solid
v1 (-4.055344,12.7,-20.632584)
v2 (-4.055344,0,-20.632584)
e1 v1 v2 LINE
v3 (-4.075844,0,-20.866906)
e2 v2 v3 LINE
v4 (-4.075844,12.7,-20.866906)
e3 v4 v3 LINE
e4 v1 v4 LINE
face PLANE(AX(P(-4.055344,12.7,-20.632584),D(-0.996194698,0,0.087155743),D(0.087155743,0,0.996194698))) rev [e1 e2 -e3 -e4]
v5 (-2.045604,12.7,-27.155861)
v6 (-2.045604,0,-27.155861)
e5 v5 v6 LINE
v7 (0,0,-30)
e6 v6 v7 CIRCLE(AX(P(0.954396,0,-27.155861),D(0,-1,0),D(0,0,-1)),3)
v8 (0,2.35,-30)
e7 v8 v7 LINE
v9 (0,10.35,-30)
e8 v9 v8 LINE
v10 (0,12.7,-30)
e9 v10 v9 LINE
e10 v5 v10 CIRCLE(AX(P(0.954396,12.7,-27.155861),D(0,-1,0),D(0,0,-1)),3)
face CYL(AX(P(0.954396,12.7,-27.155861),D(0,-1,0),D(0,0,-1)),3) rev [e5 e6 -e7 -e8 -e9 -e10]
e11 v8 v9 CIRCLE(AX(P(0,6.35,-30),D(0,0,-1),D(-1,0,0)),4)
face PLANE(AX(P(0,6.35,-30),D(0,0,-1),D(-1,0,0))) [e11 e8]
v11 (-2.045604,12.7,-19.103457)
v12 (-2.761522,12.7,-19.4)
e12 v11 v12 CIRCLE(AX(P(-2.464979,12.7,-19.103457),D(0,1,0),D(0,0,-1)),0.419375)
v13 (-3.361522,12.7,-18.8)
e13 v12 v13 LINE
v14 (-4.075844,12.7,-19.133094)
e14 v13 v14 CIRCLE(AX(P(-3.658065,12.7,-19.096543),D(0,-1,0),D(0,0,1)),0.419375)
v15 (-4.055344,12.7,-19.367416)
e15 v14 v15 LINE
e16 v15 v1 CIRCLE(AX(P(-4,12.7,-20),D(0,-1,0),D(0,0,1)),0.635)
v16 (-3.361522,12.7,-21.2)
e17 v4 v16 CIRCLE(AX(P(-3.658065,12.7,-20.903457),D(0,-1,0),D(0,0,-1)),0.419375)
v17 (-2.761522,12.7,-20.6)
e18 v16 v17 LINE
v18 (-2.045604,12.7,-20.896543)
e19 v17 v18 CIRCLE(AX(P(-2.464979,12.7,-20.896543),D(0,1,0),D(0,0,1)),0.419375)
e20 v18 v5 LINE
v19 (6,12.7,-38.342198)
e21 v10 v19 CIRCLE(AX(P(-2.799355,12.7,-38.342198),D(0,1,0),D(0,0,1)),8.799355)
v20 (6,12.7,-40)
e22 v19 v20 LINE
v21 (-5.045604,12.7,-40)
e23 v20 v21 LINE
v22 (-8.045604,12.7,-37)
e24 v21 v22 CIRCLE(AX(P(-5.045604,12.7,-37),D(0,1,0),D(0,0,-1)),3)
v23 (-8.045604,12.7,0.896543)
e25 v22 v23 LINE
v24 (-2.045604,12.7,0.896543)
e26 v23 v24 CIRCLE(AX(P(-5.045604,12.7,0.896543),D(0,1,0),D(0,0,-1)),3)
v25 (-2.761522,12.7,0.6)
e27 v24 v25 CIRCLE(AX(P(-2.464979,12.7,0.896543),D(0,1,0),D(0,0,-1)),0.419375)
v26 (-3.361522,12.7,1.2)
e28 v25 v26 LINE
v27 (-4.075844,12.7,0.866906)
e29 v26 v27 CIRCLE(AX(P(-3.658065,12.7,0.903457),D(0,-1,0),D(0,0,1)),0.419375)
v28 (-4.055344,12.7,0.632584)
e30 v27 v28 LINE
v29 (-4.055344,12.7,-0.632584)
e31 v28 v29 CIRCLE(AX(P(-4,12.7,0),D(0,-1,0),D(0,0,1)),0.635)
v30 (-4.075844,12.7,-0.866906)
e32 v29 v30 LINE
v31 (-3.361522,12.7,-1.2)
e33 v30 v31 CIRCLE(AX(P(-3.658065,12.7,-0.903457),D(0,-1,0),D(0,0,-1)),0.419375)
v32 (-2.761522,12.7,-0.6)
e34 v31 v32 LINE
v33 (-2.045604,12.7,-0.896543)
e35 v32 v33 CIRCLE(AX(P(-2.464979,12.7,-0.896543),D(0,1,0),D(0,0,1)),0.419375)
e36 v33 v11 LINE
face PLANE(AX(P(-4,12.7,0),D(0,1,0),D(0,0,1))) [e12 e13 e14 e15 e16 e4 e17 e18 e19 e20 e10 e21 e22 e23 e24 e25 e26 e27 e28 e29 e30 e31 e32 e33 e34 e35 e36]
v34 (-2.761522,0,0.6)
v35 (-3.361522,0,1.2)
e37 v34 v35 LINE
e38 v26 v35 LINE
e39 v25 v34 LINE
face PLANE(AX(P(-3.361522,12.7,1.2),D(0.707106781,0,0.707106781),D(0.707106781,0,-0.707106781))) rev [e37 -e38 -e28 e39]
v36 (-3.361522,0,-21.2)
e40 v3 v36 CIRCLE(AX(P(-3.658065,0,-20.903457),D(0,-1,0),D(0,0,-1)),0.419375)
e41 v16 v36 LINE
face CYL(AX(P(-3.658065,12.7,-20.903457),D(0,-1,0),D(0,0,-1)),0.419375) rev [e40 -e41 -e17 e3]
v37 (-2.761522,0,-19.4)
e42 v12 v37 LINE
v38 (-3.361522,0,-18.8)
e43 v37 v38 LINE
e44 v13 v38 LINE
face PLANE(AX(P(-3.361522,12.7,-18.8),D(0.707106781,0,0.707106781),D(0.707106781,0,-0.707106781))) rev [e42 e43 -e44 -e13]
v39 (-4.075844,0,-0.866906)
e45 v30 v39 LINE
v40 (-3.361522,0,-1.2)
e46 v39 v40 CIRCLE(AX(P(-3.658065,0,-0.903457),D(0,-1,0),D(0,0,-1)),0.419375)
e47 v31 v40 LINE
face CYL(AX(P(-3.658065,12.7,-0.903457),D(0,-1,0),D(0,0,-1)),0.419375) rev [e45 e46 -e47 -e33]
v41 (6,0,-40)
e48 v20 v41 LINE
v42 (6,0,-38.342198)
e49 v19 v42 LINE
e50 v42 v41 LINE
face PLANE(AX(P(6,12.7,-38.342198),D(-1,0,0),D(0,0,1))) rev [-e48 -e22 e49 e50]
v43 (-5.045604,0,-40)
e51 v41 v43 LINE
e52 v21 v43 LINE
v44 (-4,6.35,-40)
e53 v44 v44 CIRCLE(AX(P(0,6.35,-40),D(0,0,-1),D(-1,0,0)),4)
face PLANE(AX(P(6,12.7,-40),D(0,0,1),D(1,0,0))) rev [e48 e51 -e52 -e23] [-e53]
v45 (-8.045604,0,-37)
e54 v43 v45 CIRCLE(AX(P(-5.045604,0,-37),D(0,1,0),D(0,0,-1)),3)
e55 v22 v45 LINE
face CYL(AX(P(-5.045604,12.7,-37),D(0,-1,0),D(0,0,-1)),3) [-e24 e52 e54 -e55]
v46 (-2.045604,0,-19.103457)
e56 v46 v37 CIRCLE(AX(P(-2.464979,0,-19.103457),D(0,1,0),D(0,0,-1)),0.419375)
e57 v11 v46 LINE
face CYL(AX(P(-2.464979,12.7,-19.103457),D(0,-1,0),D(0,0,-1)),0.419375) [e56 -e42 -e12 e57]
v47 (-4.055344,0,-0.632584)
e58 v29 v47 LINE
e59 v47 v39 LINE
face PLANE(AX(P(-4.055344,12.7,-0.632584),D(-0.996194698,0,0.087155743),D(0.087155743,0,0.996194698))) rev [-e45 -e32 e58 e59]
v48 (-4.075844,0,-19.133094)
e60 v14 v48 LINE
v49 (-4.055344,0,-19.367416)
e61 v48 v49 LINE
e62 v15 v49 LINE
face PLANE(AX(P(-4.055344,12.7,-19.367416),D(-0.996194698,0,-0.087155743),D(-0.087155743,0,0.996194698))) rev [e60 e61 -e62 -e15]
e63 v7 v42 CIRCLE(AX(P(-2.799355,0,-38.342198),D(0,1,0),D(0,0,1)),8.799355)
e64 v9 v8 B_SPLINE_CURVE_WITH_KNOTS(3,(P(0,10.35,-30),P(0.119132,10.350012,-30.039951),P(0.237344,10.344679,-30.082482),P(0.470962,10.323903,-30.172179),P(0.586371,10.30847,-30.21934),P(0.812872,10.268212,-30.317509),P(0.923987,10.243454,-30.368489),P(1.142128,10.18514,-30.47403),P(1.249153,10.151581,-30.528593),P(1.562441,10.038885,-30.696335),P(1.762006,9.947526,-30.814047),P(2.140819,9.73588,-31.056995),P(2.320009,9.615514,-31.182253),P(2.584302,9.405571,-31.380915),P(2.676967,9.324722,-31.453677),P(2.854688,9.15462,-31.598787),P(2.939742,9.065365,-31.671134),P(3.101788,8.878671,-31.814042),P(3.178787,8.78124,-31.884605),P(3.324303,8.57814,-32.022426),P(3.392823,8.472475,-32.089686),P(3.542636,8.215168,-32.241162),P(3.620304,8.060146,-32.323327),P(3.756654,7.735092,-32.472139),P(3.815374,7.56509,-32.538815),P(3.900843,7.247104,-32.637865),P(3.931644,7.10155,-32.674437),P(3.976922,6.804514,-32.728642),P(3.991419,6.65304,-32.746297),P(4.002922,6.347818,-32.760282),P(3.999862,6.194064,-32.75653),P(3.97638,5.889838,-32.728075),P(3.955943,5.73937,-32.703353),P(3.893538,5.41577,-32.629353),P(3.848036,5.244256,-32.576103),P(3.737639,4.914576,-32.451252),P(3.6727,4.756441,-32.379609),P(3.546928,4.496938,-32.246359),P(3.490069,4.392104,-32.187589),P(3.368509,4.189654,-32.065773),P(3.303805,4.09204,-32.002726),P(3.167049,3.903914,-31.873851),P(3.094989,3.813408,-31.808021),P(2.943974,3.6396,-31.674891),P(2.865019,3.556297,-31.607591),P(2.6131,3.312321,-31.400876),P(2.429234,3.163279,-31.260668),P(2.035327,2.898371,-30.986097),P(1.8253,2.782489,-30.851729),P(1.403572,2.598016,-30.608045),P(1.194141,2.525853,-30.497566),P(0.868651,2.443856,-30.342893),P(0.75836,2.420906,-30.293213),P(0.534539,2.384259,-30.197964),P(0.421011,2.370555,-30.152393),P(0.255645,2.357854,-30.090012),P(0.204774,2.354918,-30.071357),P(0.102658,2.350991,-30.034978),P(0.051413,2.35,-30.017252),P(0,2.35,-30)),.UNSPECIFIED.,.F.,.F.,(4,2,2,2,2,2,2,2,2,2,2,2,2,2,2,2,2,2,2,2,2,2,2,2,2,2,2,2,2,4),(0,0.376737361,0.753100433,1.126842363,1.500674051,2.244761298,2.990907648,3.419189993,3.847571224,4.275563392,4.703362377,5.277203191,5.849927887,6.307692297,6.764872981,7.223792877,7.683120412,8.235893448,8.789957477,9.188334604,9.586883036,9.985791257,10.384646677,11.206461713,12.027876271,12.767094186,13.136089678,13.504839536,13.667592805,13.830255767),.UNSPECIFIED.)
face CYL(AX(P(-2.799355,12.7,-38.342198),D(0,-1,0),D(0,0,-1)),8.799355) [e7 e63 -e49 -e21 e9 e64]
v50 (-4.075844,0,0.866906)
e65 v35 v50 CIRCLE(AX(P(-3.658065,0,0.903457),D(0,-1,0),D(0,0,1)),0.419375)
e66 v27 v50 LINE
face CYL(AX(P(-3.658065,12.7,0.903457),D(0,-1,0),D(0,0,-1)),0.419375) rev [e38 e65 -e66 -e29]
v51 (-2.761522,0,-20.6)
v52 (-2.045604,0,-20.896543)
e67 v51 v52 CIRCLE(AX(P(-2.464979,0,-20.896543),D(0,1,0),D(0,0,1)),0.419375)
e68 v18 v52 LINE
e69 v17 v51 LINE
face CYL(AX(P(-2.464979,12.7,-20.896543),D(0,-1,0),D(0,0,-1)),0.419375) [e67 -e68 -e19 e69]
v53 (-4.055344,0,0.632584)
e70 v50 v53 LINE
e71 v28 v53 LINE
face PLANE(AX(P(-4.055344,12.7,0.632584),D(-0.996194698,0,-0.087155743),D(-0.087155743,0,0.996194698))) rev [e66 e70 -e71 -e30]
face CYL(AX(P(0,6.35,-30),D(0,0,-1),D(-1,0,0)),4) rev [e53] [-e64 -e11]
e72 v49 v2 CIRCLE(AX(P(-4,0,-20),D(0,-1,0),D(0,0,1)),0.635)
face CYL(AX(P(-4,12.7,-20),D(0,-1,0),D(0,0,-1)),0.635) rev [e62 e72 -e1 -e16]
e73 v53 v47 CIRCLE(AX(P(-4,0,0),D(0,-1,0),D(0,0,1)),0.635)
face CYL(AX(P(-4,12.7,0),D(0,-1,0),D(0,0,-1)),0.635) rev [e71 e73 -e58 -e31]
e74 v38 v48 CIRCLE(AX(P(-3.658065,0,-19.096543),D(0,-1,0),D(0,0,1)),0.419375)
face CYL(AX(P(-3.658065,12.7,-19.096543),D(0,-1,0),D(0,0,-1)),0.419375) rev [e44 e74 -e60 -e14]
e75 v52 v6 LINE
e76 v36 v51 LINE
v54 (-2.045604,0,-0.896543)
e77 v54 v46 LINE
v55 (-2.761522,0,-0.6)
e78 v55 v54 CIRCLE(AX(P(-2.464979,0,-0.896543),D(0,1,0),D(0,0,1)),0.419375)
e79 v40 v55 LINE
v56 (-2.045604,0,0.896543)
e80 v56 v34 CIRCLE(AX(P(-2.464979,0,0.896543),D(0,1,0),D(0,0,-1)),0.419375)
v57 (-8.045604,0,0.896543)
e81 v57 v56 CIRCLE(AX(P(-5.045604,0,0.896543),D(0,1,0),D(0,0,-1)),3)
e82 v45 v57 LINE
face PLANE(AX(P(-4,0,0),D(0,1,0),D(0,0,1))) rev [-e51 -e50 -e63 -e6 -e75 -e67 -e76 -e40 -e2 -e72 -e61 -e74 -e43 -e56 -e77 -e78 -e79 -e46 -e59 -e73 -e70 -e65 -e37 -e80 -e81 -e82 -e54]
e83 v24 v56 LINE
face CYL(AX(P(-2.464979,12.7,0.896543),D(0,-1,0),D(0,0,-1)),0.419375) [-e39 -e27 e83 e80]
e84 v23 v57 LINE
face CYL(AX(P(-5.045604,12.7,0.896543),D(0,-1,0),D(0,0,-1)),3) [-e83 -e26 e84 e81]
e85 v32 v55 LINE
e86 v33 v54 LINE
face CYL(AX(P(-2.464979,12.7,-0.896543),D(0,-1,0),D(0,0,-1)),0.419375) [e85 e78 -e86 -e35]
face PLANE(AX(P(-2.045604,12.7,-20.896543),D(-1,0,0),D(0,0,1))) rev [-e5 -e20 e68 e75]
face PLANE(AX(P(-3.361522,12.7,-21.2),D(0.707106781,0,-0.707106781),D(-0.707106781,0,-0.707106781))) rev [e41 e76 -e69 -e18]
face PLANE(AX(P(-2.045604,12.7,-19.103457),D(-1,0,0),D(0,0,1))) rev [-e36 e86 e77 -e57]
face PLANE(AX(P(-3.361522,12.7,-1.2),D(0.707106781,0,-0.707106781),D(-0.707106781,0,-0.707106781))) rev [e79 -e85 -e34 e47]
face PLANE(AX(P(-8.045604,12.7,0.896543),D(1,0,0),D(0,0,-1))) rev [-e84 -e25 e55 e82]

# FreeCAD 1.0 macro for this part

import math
import FreeCAD as App
import Part
import Sketcher
from FreeCAD import Vector
Q = App.Units.Quantity

doc = App.newDocument("Part")
params = doc.addObject("Spreadsheet::Sheet", "Params")
for row, (alias, value) in enumerate([
    ("sketch1_radius", "3 mm"),
    ("pad1_length", "12.7 mm"),
    ("sketch2_diameter", "8 mm"),
    ("pocket1_length", "10 mm"),
], start=1):
    params.set(f"A{row}", alias)
    params.set(f"B{row}", "=" + value)
    params.setAlias(f"B{row}", alias)

body = doc.addObject("PartDesign::Body", "Body")

# Sketch on XZ plane
sketch1 = body.newObject("Sketcher::SketchObject", "Sketch")
sketch1.AttachmentSupport = (doc.getObject("XZ_Plane"), [""])
sketch1.MapMode = "FlatFace"
sketch1.addGeometry(Part.LineSegment(Vector(-4.06, -0.63, 0), Vector(-4.08, -0.87, 0)), False)
sketch1.addGeometry(Part.ArcOfCircle(Part.Circle(Vector(-3.66, -0.9, 0), Vector(0, 0, 1), 0.42), math.radians(175), math.radians(315)), False)
sketch1.addGeometry(Part.LineSegment(Vector(-3.36, -1.2, 0), Vector(-2.76, -0.6, 0)), False)
sketch1.addGeometry(Part.ArcOfCircle(Part.Circle(Vector(-2.46, -0.9, 0), Vector(0, 0, 1), 0.42), math.radians(0), math.radians(135)), False)
sketch1.addGeometry(Part.LineSegment(Vector(-2.05, -0.9, 0), Vector(-2.05, -19.1, 0)), False)
sketch1.addGeometry(Part.ArcOfCircle(Part.Circle(Vector(-2.46, -19.1, 0), Vector(0, 0, 1), 0.42), math.radians(-135), math.radians(0)), False)
sketch1.addGeometry(Part.LineSegment(Vector(-2.76, -19.4, 0), Vector(-3.36, -18.8, 0)), False)
sketch1.addGeometry(Part.ArcOfCircle(Part.Circle(Vector(-3.66, -19.1, 0), Vector(0, 0, 1), 0.42), math.radians(45), math.radians(185)), False)
sketch1.addGeometry(Part.LineSegment(Vector(-4.08, -19.13, 0), Vector(-4.06, -19.37, 0)), False)
sketch1.addGeometry(Part.ArcOfCircle(Part.Circle(Vector(-4, -20, 0), Vector(0, 0, 1), 0.64), math.radians(95), math.radians(265)), False)
sketch1.addGeometry(Part.LineSegment(Vector(-4.06, -20.63, 0), Vector(-4.08, -20.87, 0)), False)
sketch1.addGeometry(Part.ArcOfCircle(Part.Circle(Vector(-3.66, -20.9, 0), Vector(0, 0, 1), 0.42), math.radians(175), math.radians(315)), False)
sketch1.addGeometry(Part.LineSegment(Vector(-3.36, -21.2, 0), Vector(-2.76, -20.6, 0)), False)
sketch1.addGeometry(Part.ArcOfCircle(Part.Circle(Vector(-2.46, -20.9, 0), Vector(0, 0, 1), 0.42), math.radians(0), math.radians(135)), False)
sketch1.addGeometry(Part.LineSegment(Vector(-2.05, -20.9, 0), Vector(-2.05, -27.16, 0)), False)
sketch1.addGeometry(Part.ArcOfCircle(Part.Circle(Vector(0.95, -27.16, 0), Vector(0, 0, 1), 3), math.radians(-180), math.radians(-109)), False)
sketch1.addGeometry(Part.ArcOfCircle(Part.Circle(Vector(-2.8, -38.34, 0), Vector(0, 0, 1), 8.8), math.radians(0), math.radians(71)), False)
sketch1.addGeometry(Part.LineSegment(Vector(6, -38.34, 0), Vector(6, -40, 0)), False)
sketch1.addGeometry(Part.LineSegment(Vector(6, -40, 0), Vector(-5.05, -40, 0)), False)
sketch1.addGeometry(Part.ArcOfCircle(Part.Circle(Vector(-5.05, -37, 0), Vector(0, 0, 1), 3), math.radians(180), math.radians(270)), False)
sketch1.addGeometry(Part.LineSegment(Vector(-8.05, -37, 0), Vector(-8.05, 0.9, 0)), False)
sketch1.addGeometry(Part.ArcOfCircle(Part.Circle(Vector(-5.05, 0.9, 0), Vector(0, 0, 1), 3), math.radians(0), math.radians(180)), False)
sketch1.addGeometry(Part.ArcOfCircle(Part.Circle(Vector(-2.46, 0.9, 0), Vector(0, 0, 1), 0.42), math.radians(-135), math.radians(0)), False)
sketch1.addGeometry(Part.LineSegment(Vector(-2.76, 0.6, 0), Vector(-3.36, 1.2, 0)), False)
sketch1.addGeometry(Part.ArcOfCircle(Part.Circle(Vector(-3.66, 0.9, 0), Vector(0, 0, 1), 0.42), math.radians(45), math.radians(185)), False)
sketch1.addGeometry(Part.LineSegment(Vector(-4.08, 0.87, 0), Vector(-4.06, 0.63, 0)), False)
sketch1.addGeometry(Part.ArcOfCircle(Part.Circle(Vector(-4, 0, 0), Vector(0, 0, 1), 0.64), math.radians(95), math.radians(265)), False)
sketch1.addConstraint(Sketcher.Constraint("Tangent", 0, 2, 1, 1))
sketch1.addConstraint(Sketcher.Constraint("Tangent", 1, 2, 2, 1))
sketch1.addConstraint(Sketcher.Constraint("Tangent", 2, 2, 3, 2))
sketch1.addConstraint(Sketcher.Constraint("Tangent", 3, 1, 4, 1))
sketch1.addConstraint(Sketcher.Constraint("Tangent", 4, 2, 5, 2))
sketch1.addConstraint(Sketcher.Constraint("Tangent", 5, 1, 6, 1))
sketch1.addConstraint(Sketcher.Constraint("Tangent", 6, 2, 7, 1))
sketch1.addConstraint(Sketcher.Constraint("Tangent", 7, 2, 8, 1))
sketch1.addConstraint(Sketcher.Constraint("Coincident", 8, 2, 9, 1))
sketch1.addConstraint(Sketcher.Constraint("Coincident", 9, 2, 10, 1))
sketch1.addConstraint(Sketcher.Constraint("Tangent", 10, 2, 11, 1))
sketch1.addConstraint(Sketcher.Constraint("Tangent", 11, 2, 12, 1))
sketch1.addConstraint(Sketcher.Constraint("Tangent", 12, 2, 13, 2))
sketch1.addConstraint(Sketcher.Constraint("Tangent", 13, 1, 14, 1))
sketch1.addConstraint(Sketcher.Constraint("Tangent", 14, 2, 15, 1))
sketch1.addConstraint(Sketcher.Constraint("Tangent", 15, 2, 16, 2))
sketch1.addConstraint(Sketcher.Constraint("Tangent", 16, 1, 17, 1))
sketch1.addConstraint(Sketcher.Constraint("Coincident", 17, 2, 18, 1))
sketch1.addConstraint(Sketcher.Constraint("Tangent", 18, 2, 19, 2))
sketch1.addConstraint(Sketcher.Constraint("Tangent", 19, 1, 20, 1))
sketch1.addConstraint(Sketcher.Constraint("Tangent", 20, 2, 21, 2))
sketch1.addConstraint(Sketcher.Constraint("Tangent", 21, 1, 22, 2))
sketch1.addConstraint(Sketcher.Constraint("Tangent", 22, 1, 23, 1))
sketch1.addConstraint(Sketcher.Constraint("Tangent", 23, 2, 24, 1))
sketch1.addConstraint(Sketcher.Constraint("Tangent", 24, 2, 25, 1))
sketch1.addConstraint(Sketcher.Constraint("Coincident", 25, 2, 26, 1))
sketch1.addConstraint(Sketcher.Constraint("Coincident", 26, 2, 0, 1))
sketch1.addConstraint(Sketcher.Constraint("Vertical", 4))
sketch1.addConstraint(Sketcher.Constraint("Vertical", 14))
sketch1.addConstraint(Sketcher.Constraint("Vertical", 17))
sketch1.addConstraint(Sketcher.Constraint("Horizontal", 18))
sketch1.addConstraint(Sketcher.Constraint("Vertical", 20))
sketch1.addConstraint(Sketcher.Constraint("Equal", 1, 3))
sketch1.addConstraint(Sketcher.Constraint("Equal", 3, 5))
sketch1.addConstraint(Sketcher.Constraint("Equal", 5, 7))
sketch1.addConstraint(Sketcher.Constraint("Equal", 7, 11))
sketch1.addConstraint(Sketcher.Constraint("Equal", 11, 13))
sketch1.addConstraint(Sketcher.Constraint("Equal", 15, 19))
sketch1.addConstraint(Sketcher.Constraint("Equal", 19, 21))
sketch1.addConstraint(Sketcher.Constraint("Equal", 13, 22))
sketch1.addConstraint(Sketcher.Constraint("Equal", 22, 24))
sketch1.addConstraint(Sketcher.Constraint("Equal", 9, 26))
sketch1.addConstraint(Sketcher.Constraint("Symmetric", 3, 3, 22, 3, -1))
sketch1.addConstraint(Sketcher.Constraint("Symmetric", 1, 3, 24, 3, -1))
sketch1.addConstraint(Sketcher.Constraint("Symmetric", 25, 2, 26, 2, -1))
sketch1.addConstraint(Sketcher.Constraint("PointOnObject", 15, 2, -2))
sketch1.addConstraint(Sketcher.Constraint("Perpendicular", 2, 6))
sketch1.addConstraint(Sketcher.Constraint("Parallel", 0, 10))
sketch1.addConstraint(Sketcher.Constraint("Perpendicular", 6, 12))
sketch1.addConstraint(Sketcher.Constraint("Perpendicular", 12, 23))
sketch1.addConstraint(Sketcher.Constraint("Parallel", 8, 25))
sketch1.addConstraint(Sketcher.Constraint("Horizontal", 21, 3, 22, 3))
sketch1.addConstraint(Sketcher.Constraint("Vertical", 1, 3, 7, 3))
sketch1.addConstraint(Sketcher.Constraint("Vertical", 7, 3, 11, 3))
sketch1.addConstraint(Sketcher.Constraint("Vertical", 5, 3, 13, 3))
sketch1.addConstraint(Sketcher.Constraint("Vertical", 9, 3, 26, 3))
sketch1.addConstraint(Sketcher.Constraint("Vertical", 8, 2, 9, 2))
sketch1.addConstraint(Sketcher.Constraint("Vertical", 9, 2, 25, 2))
sketch1.addConstraint(Sketcher.Constraint("Radius", 15, Q("3 mm")))
sketch1.addConstraint(Sketcher.Constraint("Angle", 0, Q("-95 deg")))
sketch1.addConstraint(Sketcher.Constraint("DistanceX", 9, 3, -1, 1, Q("4 mm")))
sketch1.addConstraint(Sketcher.Constraint("DistanceY", 9, 3, -1, 1, Q("20 mm")))
sketch1.addConstraint(Sketcher.Constraint("DistanceY", 19, 3, -1, 1, Q("37 mm")))
sketch1.addConstraint(Sketcher.Constraint("DistanceY", 15, 2, -1, 1, Q("30 mm")))
sketch1.addConstraint(Sketcher.Constraint("DistanceX", -1, 1, 16, 1, Q("6 mm")))
sketch1.addConstraint(Sketcher.Constraint("Radius", 9, Q("0.635 mm")))
sketch1.addConstraint(Sketcher.Constraint("DistanceY", 1, 2, -1, 1, Q("1.2 mm")))
sketch1.addConstraint(Sketcher.Constraint("DistanceY", 2, 2, -1, 1, Q("0.6 mm")))
sketch1.addConstraint(Sketcher.Constraint("Radius", 1, Q("0.419375 mm")))
sketch1.addConstraint(Sketcher.Constraint("Radius", 16, Q("8.799355 mm")))
sketch1.setExpression("Constraints[58]", "Params.sketch1_radius")
pad1 = body.newObject("PartDesign::Pad", "Pad")
pad1.Profile = sketch1
pad1.setExpression("Length", "Params.pad1_length")
pad1.Reversed = True

# Sketch on XY plane
sketch2 = body.newObject("Sketcher::SketchObject", "Sketch001")
sketch2.AttachmentSupport = (doc.getObject("XY_Plane"), [""])
sketch2.MapMode = "FlatFace"
sketch2.AttachmentOffset = App.Placement(Vector(0, 0, -40), App.Rotation())
sketch2.addGeometry(Part.Circle(Vector(0, 6.3, 0), Vector(0, 0, 1), 4), False)
sketch2.addConstraint(Sketcher.Constraint("PointOnObject", 0, 3, -2))
sketch2.addConstraint(Sketcher.Constraint("Diameter", 0, Q("8 mm")))
sketch2.addConstraint(Sketcher.Constraint("DistanceY", -1, 1, 0, 3, Q("6.35 mm")))
sketch2.setExpression("Constraints[1]", "Params.sketch2_diameter")
pocket1 = body.newObject("PartDesign::Pocket", "Pocket")
pocket1.Profile = sketch2
pocket1.setExpression("Length", "Params.pocket1_length")
pocket1.Reversed = True

doc.recompute()
